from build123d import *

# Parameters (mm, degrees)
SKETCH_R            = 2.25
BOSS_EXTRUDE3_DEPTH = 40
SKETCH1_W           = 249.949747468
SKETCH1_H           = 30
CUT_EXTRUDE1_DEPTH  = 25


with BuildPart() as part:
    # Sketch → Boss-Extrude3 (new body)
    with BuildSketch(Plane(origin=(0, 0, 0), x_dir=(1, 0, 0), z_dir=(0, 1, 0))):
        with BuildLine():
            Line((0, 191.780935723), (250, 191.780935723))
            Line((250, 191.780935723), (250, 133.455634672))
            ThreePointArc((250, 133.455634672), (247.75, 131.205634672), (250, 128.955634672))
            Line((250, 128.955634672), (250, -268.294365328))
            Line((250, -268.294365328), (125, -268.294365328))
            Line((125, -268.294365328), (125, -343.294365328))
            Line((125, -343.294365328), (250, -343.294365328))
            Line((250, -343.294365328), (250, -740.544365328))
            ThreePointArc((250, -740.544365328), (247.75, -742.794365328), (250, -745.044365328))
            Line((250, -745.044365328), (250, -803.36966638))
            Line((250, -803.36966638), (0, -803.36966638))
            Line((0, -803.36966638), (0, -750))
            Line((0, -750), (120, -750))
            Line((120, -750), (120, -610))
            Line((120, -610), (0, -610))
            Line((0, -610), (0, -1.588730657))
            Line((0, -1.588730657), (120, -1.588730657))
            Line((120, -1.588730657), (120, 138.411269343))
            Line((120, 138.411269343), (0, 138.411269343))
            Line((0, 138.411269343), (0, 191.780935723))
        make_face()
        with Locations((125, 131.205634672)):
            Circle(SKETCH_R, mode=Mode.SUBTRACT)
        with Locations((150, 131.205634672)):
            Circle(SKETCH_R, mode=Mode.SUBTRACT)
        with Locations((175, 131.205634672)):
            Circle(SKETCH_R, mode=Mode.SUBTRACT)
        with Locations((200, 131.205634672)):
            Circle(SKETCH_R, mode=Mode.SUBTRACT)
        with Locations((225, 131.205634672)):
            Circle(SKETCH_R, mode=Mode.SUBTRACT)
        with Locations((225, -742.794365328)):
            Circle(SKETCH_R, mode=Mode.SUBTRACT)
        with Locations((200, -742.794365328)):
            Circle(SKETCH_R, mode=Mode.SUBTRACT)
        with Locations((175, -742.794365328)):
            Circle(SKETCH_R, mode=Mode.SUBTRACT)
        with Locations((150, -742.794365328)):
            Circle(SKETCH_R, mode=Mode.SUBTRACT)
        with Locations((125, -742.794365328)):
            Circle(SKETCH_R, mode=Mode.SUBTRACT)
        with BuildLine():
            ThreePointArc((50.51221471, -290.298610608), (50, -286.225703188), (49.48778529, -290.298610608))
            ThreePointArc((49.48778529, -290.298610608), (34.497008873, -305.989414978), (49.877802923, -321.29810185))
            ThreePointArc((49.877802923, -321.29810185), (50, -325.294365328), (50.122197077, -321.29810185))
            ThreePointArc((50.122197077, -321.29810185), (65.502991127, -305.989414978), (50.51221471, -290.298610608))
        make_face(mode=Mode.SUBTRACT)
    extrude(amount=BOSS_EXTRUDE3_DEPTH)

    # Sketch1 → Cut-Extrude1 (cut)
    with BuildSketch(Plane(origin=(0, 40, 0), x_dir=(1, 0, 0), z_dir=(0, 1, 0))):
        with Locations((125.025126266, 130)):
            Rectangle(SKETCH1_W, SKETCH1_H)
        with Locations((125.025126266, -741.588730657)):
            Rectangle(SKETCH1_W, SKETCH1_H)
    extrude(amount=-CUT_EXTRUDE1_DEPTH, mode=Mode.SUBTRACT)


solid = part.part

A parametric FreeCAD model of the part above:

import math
import FreeCAD as App
import Part
import Sketcher
Q = App.Units.Quantity


def add_polygon(sketch, points):
    """Adds a closed chain of lines whose ends are joined by coincident constraints."""
    first, n = sketch.GeometryCount, len(points)
    for a, b in zip(points, points[1:] + points[:1]):
        sketch.addGeometry(Part.LineSegment(App.Vector(*a, 0), App.Vector(*b, 0)), False)
    for i in range(n):
        sketch.addConstraint(Sketcher.Constraint("Coincident", first + i, 2, first + (i + 1) % n, 1))

doc = App.newDocument("Part")
body = doc.addObject("PartDesign::Body", "Body")

sketch1 = body.newObject("Sketcher::SketchObject", "Sketch")
sketch1.AttachmentSupport = (doc.getObject("XZ_Plane"), [""])
sketch1.MapMode = "FlatFace"
sketch1.addGeometry([
    Part.LineSegment(App.Vector(250, -191.780936, 0), App.Vector(0, -191.780936, 0)),
    Part.LineSegment(App.Vector(0, -191.780936, 0), App.Vector(0, -138.411269, 0)),
    Part.LineSegment(App.Vector(0, -138.411269, 0), App.Vector(120, -138.411269, 0)),
    Part.LineSegment(App.Vector(120, -138.411269, 0), App.Vector(120, 1.588731, 0)),
    Part.LineSegment(App.Vector(120, 1.588731, 0), App.Vector(0, 1.588731, 0)),
    Part.LineSegment(App.Vector(0, 1.588731, 0), App.Vector(0, 610, 0)),
    Part.LineSegment(App.Vector(0, 610, 0), App.Vector(120, 610, 0)),
    Part.LineSegment(App.Vector(120, 610, 0), App.Vector(120, 750, 0)),
    Part.LineSegment(App.Vector(120, 750, 0), App.Vector(0, 750, 0)),
    Part.LineSegment(App.Vector(0, 750, 0), App.Vector(0, 803.369666, 0)),
    Part.LineSegment(App.Vector(0, 803.369666, 0), App.Vector(250, 803.369666, 0)),
    Part.LineSegment(App.Vector(250, 803.369666, 0), App.Vector(250, 745.044365, 0)),
    Part.ArcOfCircle(Part.Circle(App.Vector(250, 742.794365, 0), App.Vector(0, 0, 1), 2.25), math.radians(90), math.radians(270)),
    Part.LineSegment(App.Vector(250, 740.544365, 0), App.Vector(250, 343.294365, 0)),
    Part.LineSegment(App.Vector(250, 343.294365, 0), App.Vector(125, 343.294365, 0)),
    Part.LineSegment(App.Vector(125, 343.294365, 0), App.Vector(125, 268.294365, 0)),
    Part.LineSegment(App.Vector(125, 268.294365, 0), App.Vector(250, 268.294365, 0)),
    Part.LineSegment(App.Vector(250, 268.294365, 0), App.Vector(250, -128.955635, 0)),
    Part.ArcOfCircle(Part.Circle(App.Vector(250, -131.205635, 0), App.Vector(0, 0, 1), 2.25), math.radians(90), math.radians(270)),
    Part.LineSegment(App.Vector(250, -133.455635, 0), App.Vector(250, -191.780936, 0)),
    Part.Circle(App.Vector(225, 742.794365, 0), App.Vector(0, 0, 1), 2.25),
    Part.Circle(App.Vector(200, 742.794365, 0), App.Vector(0, 0, 1), 2.25),
    Part.Circle(App.Vector(175, 742.794365, 0), App.Vector(0, 0, 1), 2.25),
    Part.Circle(App.Vector(150, 742.794365, 0), App.Vector(0, 0, 1), 2.25),
    Part.Circle(App.Vector(125, 742.794365, 0), App.Vector(0, 0, 1), 2.25),
    Part.Circle(App.Vector(225, -131.205635, 0), App.Vector(0, 0, 1), 2.25),
    Part.Circle(App.Vector(200, -131.205635, 0), App.Vector(0, 0, 1), 2.25),
    Part.Circle(App.Vector(175, -131.205635, 0), App.Vector(0, 0, 1), 2.25),
    Part.Circle(App.Vector(150, -131.205635, 0), App.Vector(0, 0, 1), 2.25),
    Part.ArcOfCircle(Part.Circle(App.Vector(50, 305.794365, 0), App.Vector(0, 0, 1), 15.504218), math.radians(-88.106768), math.radians(89.548416)),
    Part.ArcOfCircle(Part.Circle(App.Vector(50, 323.294365, 0), App.Vector(0, 0, 1), 2), math.radians(-86.49713), math.radians(266.49713)),
    Part.ArcOfCircle(Part.Circle(App.Vector(50, 305.794365, 0), App.Vector(0, 0, 1), 15.504218), math.radians(90.451584), math.radians(268.106768)),
    Part.ArcOfCircle(Part.Circle(App.Vector(50, 288.294365, 0), App.Vector(0, 0, 1), 2.068662), math.radians(104.335937), math.radians(435.664063)),
    Part.Circle(App.Vector(125, -131.205635, 0), App.Vector(0, 0, 1), 2.25),
], False)
sketch1.addConstraint([
    Sketcher.Constraint("Coincident", 0, 2, 1, 1),
    Sketcher.Constraint("Coincident", 1, 2, 2, 1),
    Sketcher.Constraint("Coincident", 2, 2, 3, 1),
    Sketcher.Constraint("Coincident", 3, 2, 4, 1),
    Sketcher.Constraint("Coincident", 4, 2, 5, 1),
    Sketcher.Constraint("Coincident", 5, 2, 6, 1),
    Sketcher.Constraint("Coincident", 6, 2, 7, 1),
    Sketcher.Constraint("Coincident", 7, 2, 8, 1),
    Sketcher.Constraint("Coincident", 8, 2, 9, 1),
    Sketcher.Constraint("Coincident", 9, 2, 10, 1),
    Sketcher.Constraint("Coincident", 10, 2, 11, 1),
    Sketcher.Constraint("Coincident", 11, 2, 12, 1),
    Sketcher.Constraint("Coincident", 12, 2, 13, 1),
    Sketcher.Constraint("Coincident", 13, 2, 14, 1),
    Sketcher.Constraint("Coincident", 14, 2, 15, 1),
    Sketcher.Constraint("Coincident", 15, 2, 16, 1),
    Sketcher.Constraint("Coincident", 16, 2, 17, 1),
    Sketcher.Constraint("Coincident", 17, 2, 18, 1),
    Sketcher.Constraint("Coincident", 18, 2, 19, 1),
    Sketcher.Constraint("Coincident", 19, 2, 0, 1),
    Sketcher.Constraint("Coincident", 29, 2, 30, 1),
    Sketcher.Constraint("Coincident", 30, 2, 31, 1),
    Sketcher.Constraint("Coincident", 31, 2, 32, 1),
    Sketcher.Constraint("Coincident", 32, 2, 29, 1),
    Sketcher.Constraint("Horizontal", 0),
    Sketcher.Constraint("Vertical", 1),
    Sketcher.Constraint("Horizontal", 2),
    Sketcher.Constraint("Vertical", 3),
    Sketcher.Constraint("Horizontal", 4),
    Sketcher.Constraint("Vertical", 5),
    Sketcher.Constraint("Horizontal", 6),
    Sketcher.Constraint("Vertical", 7),
    Sketcher.Constraint("Horizontal", 8),
    Sketcher.Constraint("Vertical", 9),
    Sketcher.Constraint("Horizontal", 10),
    Sketcher.Constraint("Vertical", 11),
    Sketcher.Constraint("Vertical", 13),
    Sketcher.Constraint("Horizontal", 14),
    Sketcher.Constraint("Vertical", 15),
    Sketcher.Constraint("Horizontal", 16),
    Sketcher.Constraint("Vertical", 17),
    Sketcher.Constraint("Vertical", 19),
    Sketcher.Constraint("Coincident", 31, 3, 29, 3),
    Sketcher.Constraint("Equal", 12, 18),
    Sketcher.Constraint("Equal", 18, 20),
    Sketcher.Constraint("Equal", 20, 21),
    Sketcher.Constraint("Equal", 21, 22),
    Sketcher.Constraint("Equal", 22, 23),
    Sketcher.Constraint("Equal", 23, 24),
    Sketcher.Constraint("Equal", 24, 25),
    Sketcher.Constraint("Equal", 25, 26),
    Sketcher.Constraint("Equal", 26, 27),
    Sketcher.Constraint("Equal", 27, 28),
    Sketcher.Constraint("Equal", 29, 31),
    Sketcher.Constraint("Equal", 28, 33),
    Sketcher.Constraint("PointOnObject", 0, 2, -2),
    Sketcher.Constraint("PointOnObject", 4, 2, -2),
    Sketcher.Constraint("PointOnObject", 8, 2, -2),
    Sketcher.Constraint("Horizontal", 12, 3, 20, 3),
    Sketcher.Constraint("Horizontal", 20, 3, 21, 3),
    Sketcher.Constraint("Horizontal", 21, 3, 22, 3),
    Sketcher.Constraint("Horizontal", 22, 3, 23, 3),
    Sketcher.Constraint("Horizontal", 23, 3, 24, 3),
    Sketcher.Constraint("Horizontal", 18, 3, 25, 3),
    Sketcher.Constraint("Horizontal", 25, 3, 26, 3),
    Sketcher.Constraint("Horizontal", 26, 3, 27, 3),
    Sketcher.Constraint("Horizontal", 27, 3, 28, 3),
    Sketcher.Constraint("Horizontal", 28, 3, 33, 3),
    Sketcher.Constraint("Horizontal", 29, 2, 30, 2),
    Sketcher.Constraint("Horizontal", 31, 2, 32, 2),
    Sketcher.Constraint("Vertical", 12, 3, 18, 3),
    Sketcher.Constraint("Vertical", 20, 3, 25, 3),
    Sketcher.Constraint("Vertical", 21, 3, 26, 3),
    Sketcher.Constraint("Vertical", 22, 3, 27, 3),
    Sketcher.Constraint("Vertical", 23, 3, 28, 3),
    Sketcher.Constraint("Vertical", 24, 3, 33, 3),
    Sketcher.Constraint("Vertical", 3, 2, 6, 2),
    Sketcher.Constraint("Vertical", 18, 3, 10, 2),
    Sketcher.Constraint("Vertical", 11, 2, 12, 2),
    Sketcher.Constraint("Vertical", 33, 3, 14, 2),
    Sketcher.Constraint("Vertical", 13, 2, 16, 2),
    Sketcher.Constraint("Vertical", 17, 2, 18, 2),
    Sketcher.Constraint("Equal", 3, 7),
    Sketcher.Constraint("Equal", 1, 9),
    Sketcher.Constraint("Equal", 13, 17),
    Sketcher.Constraint("Equal", 11, 19),
    Sketcher.Constraint("Radius", 30, Q("2 mm")),
    Sketcher.Constraint("Diameter", 20, Q("4.5 mm")),
    Sketcher.Constraint("DistanceX", 0, 2, 0, 1, Q("250 mm")),
    Sketcher.Constraint("DistanceX", 2, 1, 2, 2, Q("120 mm")),
    Sketcher.Constraint("DistanceX", 14, 2, 14, 1, Q("125 mm")),
    Sketcher.Constraint("DistanceY", 3, 1, 3, 2, Q("140 mm")),
    Sketcher.Constraint("DistanceY", 15, 2, 15, 1, Q("75 mm")),
    Sketcher.Constraint("DistanceX", -1, 1, 20, 3, Q("225 mm")),
    Sketcher.Constraint("DistanceX", -1, 1, 21, 3, Q("200 mm")),
    Sketcher.Constraint("DistanceX", -1, 1, 22, 3, Q("175 mm")),
    Sketcher.Constraint("DistanceX", -1, 1, 23, 3, Q("150 mm")),
    Sketcher.Constraint("DistanceX", -1, 1, 29, 3, Q("50 mm")),
    Sketcher.Constraint("DistanceY", -1, 1, 5, 2, Q("610 mm")),
    Sketcher.Constraint("DistanceY", 18, 3, 12, 3, Q("874 mm")),
    Sketcher.Constraint("DistanceY", 29, 3, 24, 3, Q("437 mm")),
    Sketcher.Constraint("DistanceY", 32, 3, 30, 3, Q("35 mm")),
    Sketcher.Constraint("DistanceY", 30, 3, 13, 2, Q("20 mm")),
    Sketcher.Constraint("Radius", 29, Q("15.504218 mm")),
    Sketcher.Constraint("DistanceY", 11, 2, 11, 1, Q("58.325301 mm")),
    Sketcher.Constraint("Radius", 32, Q("2.068662 mm")),
    Sketcher.Constraint("DistanceY", 5, 1, 5, 2, Q("608.411269 mm")),
])
pad1 = body.newObject("PartDesign::Pad", "Pad")
pad1.Profile = sketch1
pad1.Length = 40
pad1.Reversed = True

sketch2 = body.newObject("Sketcher::SketchObject", "Sketch001")
sketch2.AttachmentSupport = (doc.getObject("XZ_Plane"), [""])
sketch2.MapMode = "FlatFace"
sketch2.AttachmentOffset = App.Placement(App.Vector(0, 0, -40), App.Rotation())
add_polygon(sketch2, [(0, -145), (0, -115), (250, -115), (250, -145)])
add_polygon(sketch2, [(0, 727), (0, 757), (250, 757), (250, 727)])
sketch2.addConstraint([
    Sketcher.Constraint("Vertical", 0),
    Sketcher.Constraint("Horizontal", 1),
    Sketcher.Constraint("Vertical", 2),
    Sketcher.Constraint("Horizontal", 3),
    Sketcher.Constraint("Vertical", 4),
    Sketcher.Constraint("Horizontal", 5),
    Sketcher.Constraint("Vertical", 6),
    Sketcher.Constraint("Horizontal", 7),
    Sketcher.Constraint("Vertical", 3, 2, 4, 2),
    Sketcher.Constraint("Vertical", 2, 2, 5, 2),
    Sketcher.Constraint("Equal", 2, 4),
    Sketcher.Constraint("DistanceY", 0, 1, 0, 2, Q("30 mm")),
    Sketcher.Constraint("DistanceY", 0, 2, -1, 1, Q("115 mm")),
    Sketcher.Constraint("DistanceX", -1, 1, 1, 2, Q("250 mm")),
    Sketcher.Constraint("DistanceX", 1, 1, 1, 2, Q("249.949747 mm")),
    Sketcher.Constraint("DistanceY", -1, 1, 4, 2, Q("756.588731 mm")),
])
pocket1 = body.newObject("PartDesign::Pocket", "Pocket")
pocket1.Profile = sketch2
pocket1.Length = 25
pocket1.Reversed = True

doc.recompute()
